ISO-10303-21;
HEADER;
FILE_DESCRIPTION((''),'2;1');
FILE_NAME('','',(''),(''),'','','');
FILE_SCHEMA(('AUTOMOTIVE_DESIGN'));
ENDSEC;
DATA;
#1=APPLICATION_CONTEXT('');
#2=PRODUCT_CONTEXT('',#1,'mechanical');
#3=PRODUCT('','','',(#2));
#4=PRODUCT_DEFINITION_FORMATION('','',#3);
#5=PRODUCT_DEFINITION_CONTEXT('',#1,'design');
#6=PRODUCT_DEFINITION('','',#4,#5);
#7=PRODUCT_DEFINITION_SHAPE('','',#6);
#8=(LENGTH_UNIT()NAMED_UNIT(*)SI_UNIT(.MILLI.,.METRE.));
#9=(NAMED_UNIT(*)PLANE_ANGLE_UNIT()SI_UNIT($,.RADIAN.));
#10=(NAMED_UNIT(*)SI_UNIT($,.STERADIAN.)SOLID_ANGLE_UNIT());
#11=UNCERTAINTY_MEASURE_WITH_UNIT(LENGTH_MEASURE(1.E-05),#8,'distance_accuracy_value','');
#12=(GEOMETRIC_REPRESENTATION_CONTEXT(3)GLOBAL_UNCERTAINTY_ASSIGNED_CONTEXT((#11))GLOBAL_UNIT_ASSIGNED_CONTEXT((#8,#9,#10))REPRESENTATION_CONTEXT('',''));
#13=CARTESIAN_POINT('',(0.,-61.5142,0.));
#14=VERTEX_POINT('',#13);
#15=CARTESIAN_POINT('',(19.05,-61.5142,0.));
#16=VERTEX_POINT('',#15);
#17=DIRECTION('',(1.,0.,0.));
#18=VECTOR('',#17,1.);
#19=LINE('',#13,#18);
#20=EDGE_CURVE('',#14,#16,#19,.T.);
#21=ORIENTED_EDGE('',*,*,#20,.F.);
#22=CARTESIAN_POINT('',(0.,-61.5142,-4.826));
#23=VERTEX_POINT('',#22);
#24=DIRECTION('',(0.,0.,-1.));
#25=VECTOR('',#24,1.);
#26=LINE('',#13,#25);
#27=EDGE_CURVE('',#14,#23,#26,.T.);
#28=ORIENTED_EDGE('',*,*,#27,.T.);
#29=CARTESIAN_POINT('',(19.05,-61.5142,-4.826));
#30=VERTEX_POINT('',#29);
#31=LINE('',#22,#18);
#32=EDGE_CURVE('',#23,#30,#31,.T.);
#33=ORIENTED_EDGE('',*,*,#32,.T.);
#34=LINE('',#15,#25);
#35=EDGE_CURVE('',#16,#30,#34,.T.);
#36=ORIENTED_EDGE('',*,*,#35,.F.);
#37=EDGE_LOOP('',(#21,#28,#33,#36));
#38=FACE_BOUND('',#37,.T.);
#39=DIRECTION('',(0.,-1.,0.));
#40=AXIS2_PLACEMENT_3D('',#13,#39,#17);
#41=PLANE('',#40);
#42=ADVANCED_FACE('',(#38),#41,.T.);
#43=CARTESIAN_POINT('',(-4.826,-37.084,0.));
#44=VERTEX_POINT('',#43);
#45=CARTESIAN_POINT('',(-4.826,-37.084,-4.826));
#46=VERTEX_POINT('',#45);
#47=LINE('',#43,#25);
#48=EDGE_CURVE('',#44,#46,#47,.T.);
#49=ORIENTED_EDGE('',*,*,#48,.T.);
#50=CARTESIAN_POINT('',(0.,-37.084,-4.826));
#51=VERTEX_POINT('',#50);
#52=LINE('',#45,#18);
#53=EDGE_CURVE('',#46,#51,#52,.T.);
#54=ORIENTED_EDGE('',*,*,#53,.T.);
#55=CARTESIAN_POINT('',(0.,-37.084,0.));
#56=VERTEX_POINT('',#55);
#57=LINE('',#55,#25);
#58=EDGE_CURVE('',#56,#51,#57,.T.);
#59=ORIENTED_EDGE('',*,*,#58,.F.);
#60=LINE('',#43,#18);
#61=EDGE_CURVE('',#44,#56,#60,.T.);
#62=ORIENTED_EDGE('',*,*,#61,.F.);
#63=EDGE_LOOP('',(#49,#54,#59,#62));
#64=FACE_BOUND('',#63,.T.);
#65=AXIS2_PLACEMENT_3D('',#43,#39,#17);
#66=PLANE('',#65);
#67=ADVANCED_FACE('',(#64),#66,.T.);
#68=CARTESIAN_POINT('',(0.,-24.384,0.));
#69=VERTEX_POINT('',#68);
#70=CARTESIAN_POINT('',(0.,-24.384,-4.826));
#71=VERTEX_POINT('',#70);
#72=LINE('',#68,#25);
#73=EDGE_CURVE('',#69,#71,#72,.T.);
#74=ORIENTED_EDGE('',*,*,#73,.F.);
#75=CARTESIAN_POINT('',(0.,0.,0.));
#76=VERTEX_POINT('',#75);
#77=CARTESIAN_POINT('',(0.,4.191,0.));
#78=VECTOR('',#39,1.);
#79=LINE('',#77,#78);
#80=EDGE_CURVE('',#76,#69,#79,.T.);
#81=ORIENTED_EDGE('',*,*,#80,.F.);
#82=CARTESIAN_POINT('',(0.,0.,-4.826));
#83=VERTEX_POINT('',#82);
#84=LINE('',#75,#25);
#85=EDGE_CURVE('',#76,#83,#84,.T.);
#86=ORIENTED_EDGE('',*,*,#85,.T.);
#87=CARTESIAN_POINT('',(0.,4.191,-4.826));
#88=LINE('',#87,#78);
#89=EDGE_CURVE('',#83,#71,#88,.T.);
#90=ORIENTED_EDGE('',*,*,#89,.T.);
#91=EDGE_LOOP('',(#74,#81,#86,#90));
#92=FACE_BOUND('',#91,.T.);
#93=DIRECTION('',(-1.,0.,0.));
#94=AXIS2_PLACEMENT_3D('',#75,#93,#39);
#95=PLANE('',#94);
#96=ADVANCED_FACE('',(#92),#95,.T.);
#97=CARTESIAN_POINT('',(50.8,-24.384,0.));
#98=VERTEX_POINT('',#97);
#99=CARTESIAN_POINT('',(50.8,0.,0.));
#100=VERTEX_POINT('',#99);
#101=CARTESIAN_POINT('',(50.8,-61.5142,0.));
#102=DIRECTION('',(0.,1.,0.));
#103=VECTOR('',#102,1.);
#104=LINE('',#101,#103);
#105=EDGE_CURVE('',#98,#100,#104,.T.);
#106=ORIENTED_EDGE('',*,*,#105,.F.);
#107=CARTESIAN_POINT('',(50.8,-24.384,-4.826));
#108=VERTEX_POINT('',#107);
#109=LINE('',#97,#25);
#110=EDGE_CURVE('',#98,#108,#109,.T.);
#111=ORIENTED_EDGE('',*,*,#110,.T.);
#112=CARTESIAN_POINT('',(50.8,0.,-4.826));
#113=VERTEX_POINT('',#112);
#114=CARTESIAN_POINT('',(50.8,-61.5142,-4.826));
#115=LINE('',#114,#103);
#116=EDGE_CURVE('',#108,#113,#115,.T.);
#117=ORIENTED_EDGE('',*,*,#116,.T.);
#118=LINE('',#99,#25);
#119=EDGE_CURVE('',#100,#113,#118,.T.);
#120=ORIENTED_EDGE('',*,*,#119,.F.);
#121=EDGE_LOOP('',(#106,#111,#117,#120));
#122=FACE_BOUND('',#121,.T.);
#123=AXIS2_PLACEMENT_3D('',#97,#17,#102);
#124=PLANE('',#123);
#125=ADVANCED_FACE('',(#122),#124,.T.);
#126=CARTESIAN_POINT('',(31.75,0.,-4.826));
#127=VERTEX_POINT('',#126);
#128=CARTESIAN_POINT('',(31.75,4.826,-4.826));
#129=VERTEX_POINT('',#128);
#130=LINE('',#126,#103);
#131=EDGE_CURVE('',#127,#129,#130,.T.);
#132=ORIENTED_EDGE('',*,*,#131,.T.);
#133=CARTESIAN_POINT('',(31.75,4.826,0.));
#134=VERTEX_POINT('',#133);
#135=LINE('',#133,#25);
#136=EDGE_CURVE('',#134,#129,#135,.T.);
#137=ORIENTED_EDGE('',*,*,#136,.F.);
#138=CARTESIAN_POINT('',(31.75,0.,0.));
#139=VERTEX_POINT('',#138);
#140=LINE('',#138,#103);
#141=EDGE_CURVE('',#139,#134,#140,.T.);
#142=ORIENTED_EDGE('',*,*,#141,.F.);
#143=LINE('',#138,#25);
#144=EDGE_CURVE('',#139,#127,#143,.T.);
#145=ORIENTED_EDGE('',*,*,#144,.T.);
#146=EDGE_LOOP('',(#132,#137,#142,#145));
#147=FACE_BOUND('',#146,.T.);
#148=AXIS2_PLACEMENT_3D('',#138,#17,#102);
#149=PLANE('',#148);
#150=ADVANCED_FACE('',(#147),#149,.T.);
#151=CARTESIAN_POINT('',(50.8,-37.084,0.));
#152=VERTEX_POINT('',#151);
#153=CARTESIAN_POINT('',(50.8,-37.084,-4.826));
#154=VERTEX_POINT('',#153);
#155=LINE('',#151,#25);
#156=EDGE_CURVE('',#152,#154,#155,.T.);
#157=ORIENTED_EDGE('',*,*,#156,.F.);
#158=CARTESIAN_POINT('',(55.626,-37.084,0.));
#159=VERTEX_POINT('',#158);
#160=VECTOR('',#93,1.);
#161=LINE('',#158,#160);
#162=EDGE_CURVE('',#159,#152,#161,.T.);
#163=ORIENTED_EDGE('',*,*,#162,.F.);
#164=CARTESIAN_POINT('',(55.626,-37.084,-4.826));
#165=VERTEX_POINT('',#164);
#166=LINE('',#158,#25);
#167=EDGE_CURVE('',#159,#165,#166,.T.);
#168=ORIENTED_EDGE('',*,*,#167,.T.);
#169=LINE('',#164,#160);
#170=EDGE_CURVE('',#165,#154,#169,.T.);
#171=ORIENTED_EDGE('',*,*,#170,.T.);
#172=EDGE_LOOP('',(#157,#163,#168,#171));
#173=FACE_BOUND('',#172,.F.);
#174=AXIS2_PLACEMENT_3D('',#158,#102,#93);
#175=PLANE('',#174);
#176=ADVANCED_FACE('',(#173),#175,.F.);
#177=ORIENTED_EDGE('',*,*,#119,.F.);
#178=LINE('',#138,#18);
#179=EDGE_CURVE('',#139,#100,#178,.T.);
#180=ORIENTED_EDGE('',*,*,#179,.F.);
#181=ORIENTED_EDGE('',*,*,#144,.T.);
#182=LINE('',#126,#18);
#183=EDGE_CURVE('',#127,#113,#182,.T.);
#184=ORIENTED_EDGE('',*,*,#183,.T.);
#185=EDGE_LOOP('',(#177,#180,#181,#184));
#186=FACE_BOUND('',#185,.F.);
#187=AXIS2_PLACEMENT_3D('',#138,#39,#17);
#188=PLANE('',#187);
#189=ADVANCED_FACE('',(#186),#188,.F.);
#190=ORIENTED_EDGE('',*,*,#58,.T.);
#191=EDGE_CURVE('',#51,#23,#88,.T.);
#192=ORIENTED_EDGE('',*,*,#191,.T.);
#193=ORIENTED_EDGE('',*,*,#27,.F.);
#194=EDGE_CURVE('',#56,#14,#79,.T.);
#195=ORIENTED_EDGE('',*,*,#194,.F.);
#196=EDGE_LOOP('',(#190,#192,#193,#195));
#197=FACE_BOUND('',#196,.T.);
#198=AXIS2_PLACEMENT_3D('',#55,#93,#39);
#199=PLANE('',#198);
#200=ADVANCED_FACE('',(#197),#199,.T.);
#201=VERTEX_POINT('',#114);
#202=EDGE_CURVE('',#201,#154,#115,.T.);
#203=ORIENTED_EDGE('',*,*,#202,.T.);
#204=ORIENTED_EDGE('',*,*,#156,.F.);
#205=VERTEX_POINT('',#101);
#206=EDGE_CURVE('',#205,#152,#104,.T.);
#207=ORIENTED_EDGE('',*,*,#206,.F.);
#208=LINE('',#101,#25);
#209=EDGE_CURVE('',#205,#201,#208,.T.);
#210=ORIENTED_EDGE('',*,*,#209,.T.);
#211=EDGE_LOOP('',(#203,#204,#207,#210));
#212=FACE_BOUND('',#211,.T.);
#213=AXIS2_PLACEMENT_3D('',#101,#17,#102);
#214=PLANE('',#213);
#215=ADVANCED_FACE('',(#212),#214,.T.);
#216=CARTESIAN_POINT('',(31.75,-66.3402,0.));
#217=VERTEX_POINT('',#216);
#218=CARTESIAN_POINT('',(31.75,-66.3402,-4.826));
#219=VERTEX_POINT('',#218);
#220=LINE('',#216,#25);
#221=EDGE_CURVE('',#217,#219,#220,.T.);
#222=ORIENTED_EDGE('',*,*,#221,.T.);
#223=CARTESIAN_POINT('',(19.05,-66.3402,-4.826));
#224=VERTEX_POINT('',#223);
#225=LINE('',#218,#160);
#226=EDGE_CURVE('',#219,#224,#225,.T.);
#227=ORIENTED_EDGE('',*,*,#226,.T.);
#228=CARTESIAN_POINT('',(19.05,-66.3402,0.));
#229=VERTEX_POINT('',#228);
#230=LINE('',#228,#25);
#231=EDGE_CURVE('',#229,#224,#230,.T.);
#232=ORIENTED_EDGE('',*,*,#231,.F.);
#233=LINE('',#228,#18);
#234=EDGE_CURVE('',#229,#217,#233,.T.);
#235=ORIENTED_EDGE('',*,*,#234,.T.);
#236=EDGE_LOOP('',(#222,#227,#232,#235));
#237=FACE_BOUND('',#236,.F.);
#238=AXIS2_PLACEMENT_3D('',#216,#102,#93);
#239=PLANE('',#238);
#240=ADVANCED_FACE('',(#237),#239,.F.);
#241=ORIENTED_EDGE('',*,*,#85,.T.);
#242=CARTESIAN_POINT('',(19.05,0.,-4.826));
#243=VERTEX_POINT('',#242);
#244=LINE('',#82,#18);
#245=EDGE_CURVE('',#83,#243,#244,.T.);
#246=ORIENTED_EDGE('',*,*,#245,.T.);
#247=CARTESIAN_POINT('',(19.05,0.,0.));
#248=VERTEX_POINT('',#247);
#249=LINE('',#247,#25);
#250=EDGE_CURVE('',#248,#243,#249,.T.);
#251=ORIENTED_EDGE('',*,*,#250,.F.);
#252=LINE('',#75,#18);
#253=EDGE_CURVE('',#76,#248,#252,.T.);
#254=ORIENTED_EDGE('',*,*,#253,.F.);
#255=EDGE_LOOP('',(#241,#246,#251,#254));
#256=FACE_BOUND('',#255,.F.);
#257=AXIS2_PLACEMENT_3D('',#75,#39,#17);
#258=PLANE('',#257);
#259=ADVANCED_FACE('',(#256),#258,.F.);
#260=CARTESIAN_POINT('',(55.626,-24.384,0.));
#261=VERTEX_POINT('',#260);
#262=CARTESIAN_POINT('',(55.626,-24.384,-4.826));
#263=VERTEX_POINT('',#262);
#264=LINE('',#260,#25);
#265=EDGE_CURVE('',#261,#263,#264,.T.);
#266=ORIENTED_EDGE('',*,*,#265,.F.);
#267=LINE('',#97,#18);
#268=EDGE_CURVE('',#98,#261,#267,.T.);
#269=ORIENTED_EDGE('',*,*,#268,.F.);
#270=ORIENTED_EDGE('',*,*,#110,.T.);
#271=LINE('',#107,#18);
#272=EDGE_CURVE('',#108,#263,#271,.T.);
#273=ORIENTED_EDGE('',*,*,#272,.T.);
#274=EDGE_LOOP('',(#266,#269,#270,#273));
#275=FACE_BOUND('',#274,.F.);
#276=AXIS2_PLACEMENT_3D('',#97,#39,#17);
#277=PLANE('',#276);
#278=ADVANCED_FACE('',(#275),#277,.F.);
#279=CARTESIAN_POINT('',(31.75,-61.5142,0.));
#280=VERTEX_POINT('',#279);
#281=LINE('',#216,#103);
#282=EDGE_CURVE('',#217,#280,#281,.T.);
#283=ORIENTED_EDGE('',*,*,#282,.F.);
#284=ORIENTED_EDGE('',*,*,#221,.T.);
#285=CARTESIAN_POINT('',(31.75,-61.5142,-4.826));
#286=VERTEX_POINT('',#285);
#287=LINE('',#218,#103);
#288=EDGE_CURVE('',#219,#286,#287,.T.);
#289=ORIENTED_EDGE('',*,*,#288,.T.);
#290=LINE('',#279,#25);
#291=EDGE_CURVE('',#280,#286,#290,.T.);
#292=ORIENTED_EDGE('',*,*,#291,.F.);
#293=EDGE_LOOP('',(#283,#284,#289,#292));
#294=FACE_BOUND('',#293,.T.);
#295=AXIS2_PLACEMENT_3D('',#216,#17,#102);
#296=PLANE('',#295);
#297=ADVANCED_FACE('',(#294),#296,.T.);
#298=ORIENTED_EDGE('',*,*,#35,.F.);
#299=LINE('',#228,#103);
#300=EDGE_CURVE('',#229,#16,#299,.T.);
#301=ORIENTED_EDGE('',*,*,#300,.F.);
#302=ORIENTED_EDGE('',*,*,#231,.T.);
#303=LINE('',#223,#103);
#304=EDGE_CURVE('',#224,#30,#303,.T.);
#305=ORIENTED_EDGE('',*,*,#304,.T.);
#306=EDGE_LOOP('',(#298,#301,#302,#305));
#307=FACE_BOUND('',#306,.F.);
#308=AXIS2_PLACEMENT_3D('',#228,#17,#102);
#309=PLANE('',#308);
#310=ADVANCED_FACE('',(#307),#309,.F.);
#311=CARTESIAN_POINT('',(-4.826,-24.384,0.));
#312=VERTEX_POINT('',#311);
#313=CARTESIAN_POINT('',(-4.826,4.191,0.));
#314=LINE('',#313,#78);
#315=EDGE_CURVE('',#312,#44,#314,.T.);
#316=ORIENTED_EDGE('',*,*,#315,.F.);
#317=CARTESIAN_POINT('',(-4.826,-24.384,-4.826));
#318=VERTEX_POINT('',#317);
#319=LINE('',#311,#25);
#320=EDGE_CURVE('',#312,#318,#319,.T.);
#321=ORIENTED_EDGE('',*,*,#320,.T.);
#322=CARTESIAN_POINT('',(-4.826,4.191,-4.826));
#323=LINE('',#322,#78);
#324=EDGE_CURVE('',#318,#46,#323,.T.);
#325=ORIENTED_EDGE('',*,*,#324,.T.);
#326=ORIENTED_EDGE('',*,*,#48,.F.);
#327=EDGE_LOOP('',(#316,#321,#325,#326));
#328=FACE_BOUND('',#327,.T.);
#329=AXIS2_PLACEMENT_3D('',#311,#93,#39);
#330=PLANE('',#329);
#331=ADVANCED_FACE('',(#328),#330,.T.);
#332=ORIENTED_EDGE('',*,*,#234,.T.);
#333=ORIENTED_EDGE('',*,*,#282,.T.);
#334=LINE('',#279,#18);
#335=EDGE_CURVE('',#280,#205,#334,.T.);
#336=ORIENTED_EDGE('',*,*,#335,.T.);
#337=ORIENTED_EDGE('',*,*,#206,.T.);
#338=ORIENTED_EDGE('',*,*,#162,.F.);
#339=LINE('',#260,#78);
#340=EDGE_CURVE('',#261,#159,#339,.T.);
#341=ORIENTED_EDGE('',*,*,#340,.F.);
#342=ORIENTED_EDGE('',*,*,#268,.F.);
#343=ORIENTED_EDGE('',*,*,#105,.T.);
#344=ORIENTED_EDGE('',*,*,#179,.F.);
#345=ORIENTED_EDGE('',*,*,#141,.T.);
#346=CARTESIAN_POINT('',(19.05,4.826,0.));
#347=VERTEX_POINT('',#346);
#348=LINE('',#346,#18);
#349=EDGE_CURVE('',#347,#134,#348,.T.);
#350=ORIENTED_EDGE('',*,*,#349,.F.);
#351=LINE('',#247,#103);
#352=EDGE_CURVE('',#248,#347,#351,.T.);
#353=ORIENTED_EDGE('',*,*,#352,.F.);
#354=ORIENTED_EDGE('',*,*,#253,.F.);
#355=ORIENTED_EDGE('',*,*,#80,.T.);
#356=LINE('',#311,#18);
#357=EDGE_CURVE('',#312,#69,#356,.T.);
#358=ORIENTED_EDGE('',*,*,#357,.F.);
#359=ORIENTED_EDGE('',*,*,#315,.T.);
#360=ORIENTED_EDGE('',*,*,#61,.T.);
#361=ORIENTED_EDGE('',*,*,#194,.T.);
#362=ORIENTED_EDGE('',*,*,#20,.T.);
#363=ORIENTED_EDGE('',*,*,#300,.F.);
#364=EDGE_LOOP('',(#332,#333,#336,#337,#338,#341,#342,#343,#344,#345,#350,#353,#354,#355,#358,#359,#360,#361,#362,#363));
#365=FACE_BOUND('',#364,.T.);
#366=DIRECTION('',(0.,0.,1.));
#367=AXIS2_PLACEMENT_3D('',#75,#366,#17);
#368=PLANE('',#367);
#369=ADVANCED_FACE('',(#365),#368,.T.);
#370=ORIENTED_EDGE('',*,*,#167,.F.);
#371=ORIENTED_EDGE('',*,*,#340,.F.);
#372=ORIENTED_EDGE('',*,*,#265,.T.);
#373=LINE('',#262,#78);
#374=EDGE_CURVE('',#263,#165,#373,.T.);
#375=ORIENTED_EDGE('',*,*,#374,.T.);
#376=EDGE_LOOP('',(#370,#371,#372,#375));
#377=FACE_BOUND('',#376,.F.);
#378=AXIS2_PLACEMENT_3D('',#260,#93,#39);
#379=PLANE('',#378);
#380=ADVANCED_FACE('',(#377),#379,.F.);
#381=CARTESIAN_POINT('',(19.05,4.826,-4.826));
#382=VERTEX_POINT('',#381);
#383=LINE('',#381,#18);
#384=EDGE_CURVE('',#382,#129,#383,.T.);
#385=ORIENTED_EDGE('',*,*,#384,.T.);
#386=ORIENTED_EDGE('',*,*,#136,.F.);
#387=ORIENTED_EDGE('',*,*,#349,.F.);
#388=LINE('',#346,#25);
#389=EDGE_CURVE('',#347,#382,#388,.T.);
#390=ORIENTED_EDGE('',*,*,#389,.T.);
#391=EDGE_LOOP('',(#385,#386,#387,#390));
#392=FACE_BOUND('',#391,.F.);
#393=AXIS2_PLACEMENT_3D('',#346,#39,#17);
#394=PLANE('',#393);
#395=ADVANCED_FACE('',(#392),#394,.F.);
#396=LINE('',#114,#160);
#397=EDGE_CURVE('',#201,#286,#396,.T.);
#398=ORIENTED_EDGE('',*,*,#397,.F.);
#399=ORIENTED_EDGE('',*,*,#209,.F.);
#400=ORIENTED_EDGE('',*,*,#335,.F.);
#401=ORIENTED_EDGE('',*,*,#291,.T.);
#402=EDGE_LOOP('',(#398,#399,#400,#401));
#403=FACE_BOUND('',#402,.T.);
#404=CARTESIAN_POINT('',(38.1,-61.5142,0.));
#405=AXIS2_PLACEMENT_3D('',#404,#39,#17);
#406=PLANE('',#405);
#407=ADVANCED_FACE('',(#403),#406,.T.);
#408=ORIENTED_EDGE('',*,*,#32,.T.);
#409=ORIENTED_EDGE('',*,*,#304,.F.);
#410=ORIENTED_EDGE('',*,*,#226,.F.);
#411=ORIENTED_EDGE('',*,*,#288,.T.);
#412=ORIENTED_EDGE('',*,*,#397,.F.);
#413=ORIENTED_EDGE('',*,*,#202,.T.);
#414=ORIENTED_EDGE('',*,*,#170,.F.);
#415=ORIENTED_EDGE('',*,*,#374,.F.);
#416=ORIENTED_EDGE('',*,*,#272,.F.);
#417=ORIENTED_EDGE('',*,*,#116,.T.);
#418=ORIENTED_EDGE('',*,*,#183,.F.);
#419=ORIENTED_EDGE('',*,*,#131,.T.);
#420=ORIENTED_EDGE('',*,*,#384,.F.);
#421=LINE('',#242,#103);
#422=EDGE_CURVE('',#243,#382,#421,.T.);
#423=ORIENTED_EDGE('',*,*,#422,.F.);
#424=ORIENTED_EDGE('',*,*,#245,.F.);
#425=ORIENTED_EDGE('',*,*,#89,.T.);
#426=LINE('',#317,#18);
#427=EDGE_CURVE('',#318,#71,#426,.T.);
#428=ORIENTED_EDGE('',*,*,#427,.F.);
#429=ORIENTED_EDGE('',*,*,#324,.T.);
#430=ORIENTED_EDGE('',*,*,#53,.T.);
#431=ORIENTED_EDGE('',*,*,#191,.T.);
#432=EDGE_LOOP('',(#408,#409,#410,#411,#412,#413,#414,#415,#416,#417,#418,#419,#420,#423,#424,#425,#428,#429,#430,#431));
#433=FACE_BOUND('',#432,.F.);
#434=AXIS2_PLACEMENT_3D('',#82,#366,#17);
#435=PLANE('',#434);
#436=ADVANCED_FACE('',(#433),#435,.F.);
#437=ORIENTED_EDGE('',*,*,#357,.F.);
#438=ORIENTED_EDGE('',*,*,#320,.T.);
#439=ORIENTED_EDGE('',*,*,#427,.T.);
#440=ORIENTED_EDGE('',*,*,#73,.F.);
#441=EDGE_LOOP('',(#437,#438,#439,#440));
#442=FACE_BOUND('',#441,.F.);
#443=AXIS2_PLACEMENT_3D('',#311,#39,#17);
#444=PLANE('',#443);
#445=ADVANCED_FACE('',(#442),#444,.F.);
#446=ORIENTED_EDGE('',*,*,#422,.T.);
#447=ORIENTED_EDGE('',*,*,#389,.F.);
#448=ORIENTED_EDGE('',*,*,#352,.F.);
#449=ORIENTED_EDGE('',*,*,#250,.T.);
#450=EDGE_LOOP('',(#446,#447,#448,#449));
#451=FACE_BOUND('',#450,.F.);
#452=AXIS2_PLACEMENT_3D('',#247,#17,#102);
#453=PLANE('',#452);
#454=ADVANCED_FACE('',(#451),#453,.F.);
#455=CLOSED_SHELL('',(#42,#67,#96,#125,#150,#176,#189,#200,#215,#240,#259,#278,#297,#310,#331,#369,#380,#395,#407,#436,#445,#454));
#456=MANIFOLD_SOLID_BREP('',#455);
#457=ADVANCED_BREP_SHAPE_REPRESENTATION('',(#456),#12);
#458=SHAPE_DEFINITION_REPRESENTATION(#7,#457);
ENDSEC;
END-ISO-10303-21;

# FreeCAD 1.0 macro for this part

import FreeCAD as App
import Part
import Sketcher
from FreeCAD import Vector
Q = App.Units.Quantity

doc = App.newDocument("Part")
body = doc.addObject("PartDesign::Body", "Body")

sketch1 = body.newObject("Sketcher::SketchObject", "Sketch")
sketch1.AttachmentSupport = (doc.getObject("XY_Plane"), [""])
sketch1.MapMode = "FlatFace"
sketch1.addGeometry([
    Part.LineSegment(Vector(19.1, 0, 0), Vector(0, 0, 0)),
    Part.LineSegment(Vector(0, 0, 0), Vector(0, -24.4, 0)),
    Part.LineSegment(Vector(0, -24.4, 0), Vector(-4.8, -24.4, 0)),
    Part.LineSegment(Vector(-4.8, -24.4, 0), Vector(-4.8, -37.1, 0)),
    Part.LineSegment(Vector(-4.8, -37.1, 0), Vector(0, -37.1, 0)),
    Part.LineSegment(Vector(0, -37.1, 0), Vector(0, -61.5, 0)),
    Part.LineSegment(Vector(0, -61.5, 0), Vector(19.1, -61.5, 0)),
    Part.LineSegment(Vector(19.1, -61.5, 0), Vector(19.1, -66.3, 0)),
    Part.LineSegment(Vector(19.1, -66.3, 0), Vector(31.8, -66.3, 0)),
    Part.LineSegment(Vector(31.8, -66.3, 0), Vector(31.8, -61.5, 0)),
    Part.LineSegment(Vector(31.8, -61.5, 0), Vector(50.8, -61.5, 0)),
    Part.LineSegment(Vector(50.8, -61.5, 0), Vector(50.8, -37.1, 0)),
    Part.LineSegment(Vector(50.8, -37.1, 0), Vector(55.6, -37.1, 0)),
    Part.LineSegment(Vector(55.6, -37.1, 0), Vector(55.6, -24.4, 0)),
    Part.LineSegment(Vector(55.6, -24.4, 0), Vector(50.8, -24.4, 0)),
    Part.LineSegment(Vector(50.8, -24.4, 0), Vector(50.8, 0, 0)),
    Part.LineSegment(Vector(50.8, 0, 0), Vector(31.8, 0, 0)),
    Part.LineSegment(Vector(31.8, 0, 0), Vector(31.8, 4.8, 0)),
    Part.LineSegment(Vector(31.8, 4.8, 0), Vector(19.1, 4.8, 0)),
    Part.LineSegment(Vector(19.1, 4.8, 0), Vector(19.1, 0, 0)),
], False)
sketch1.addConstraint([
    Sketcher.Constraint("Coincident", 0, 2, 1, 1),
    Sketcher.Constraint("Coincident", 1, 2, 2, 1),
    Sketcher.Constraint("Coincident", 2, 2, 3, 1),
    Sketcher.Constraint("Coincident", 3, 2, 4, 1),
    Sketcher.Constraint("Coincident", 4, 2, 5, 1),
    Sketcher.Constraint("Coincident", 5, 2, 6, 1),
    Sketcher.Constraint("Coincident", 6, 2, 7, 1),
    Sketcher.Constraint("Coincident", 7, 2, 8, 1),
    Sketcher.Constraint("Coincident", 8, 2, 9, 1),
    Sketcher.Constraint("Coincident", 9, 2, 10, 1),
    Sketcher.Constraint("Coincident", 10, 2, 11, 1),
    Sketcher.Constraint("Coincident", 11, 2, 12, 1),
    Sketcher.Constraint("Coincident", 12, 2, 13, 1),
    Sketcher.Constraint("Coincident", 13, 2, 14, 1),
    Sketcher.Constraint("Coincident", 14, 2, 15, 1),
    Sketcher.Constraint("Coincident", 15, 2, 16, 1),
    Sketcher.Constraint("Coincident", 16, 2, 17, 1),
    Sketcher.Constraint("Coincident", 17, 2, 18, 1),
    Sketcher.Constraint("Coincident", 18, 2, 19, 1),
    Sketcher.Constraint("Coincident", 19, 2, 0, 1),
    Sketcher.Constraint("Horizontal", 0),
    Sketcher.Constraint("Vertical", 1),
    Sketcher.Constraint("Horizontal", 2),
    Sketcher.Constraint("Vertical", 3),
    Sketcher.Constraint("Horizontal", 4),
    Sketcher.Constraint("Vertical", 5),
    Sketcher.Constraint("Horizontal", 6),
    Sketcher.Constraint("Vertical", 7),
    Sketcher.Constraint("Horizontal", 8),
    Sketcher.Constraint("Vertical", 9),
    Sketcher.Constraint("Horizontal", 10),
    Sketcher.Constraint("Vertical", 11),
    Sketcher.Constraint("Horizontal", 12),
    Sketcher.Constraint("Vertical", 13),
    Sketcher.Constraint("Horizontal", 14),
    Sketcher.Constraint("Vertical", 15),
    Sketcher.Constraint("Horizontal", 16),
    Sketcher.Constraint("Vertical", 17),
    Sketcher.Constraint("Horizontal", 18),
    Sketcher.Constraint("Vertical", 19),
    Sketcher.Constraint("Coincident", 0, 2, -1, 1),
    Sketcher.Constraint("PointOnObject", 4, 2, -2),
    Sketcher.Constraint("PointOnObject", 15, 2, -1),
    Sketcher.Constraint("Horizontal", 6, 2, 9, 2),
    Sketcher.Constraint("Horizontal", 4, 2, 11, 2),
    Sketcher.Constraint("Horizontal", 2, 2, 13, 2),
    Sketcher.Constraint("Vertical", 11, 2, 14, 2),
    Sketcher.Constraint("Vertical", 9, 2, 16, 2),
    Sketcher.Constraint("Vertical", 7, 2, 18, 2),
    Sketcher.Constraint("Equal", 6, 10),
    Sketcher.Constraint("Equal", 4, 12),
    Sketcher.Constraint("Equal", 18, 3),
    Sketcher.Constraint("Equal", 14, 7),
    Sketcher.Constraint("Equal", 9, 17),
    Sketcher.Constraint("DistanceX", 8, 1, 8, 2, Q("0.5 in")),
    Sketcher.Constraint("DistanceX", -1, 1, 10, 2, Q("2 in")),
    Sketcher.Constraint("DistanceX", 2, 2, 2, 1, Q("0.19 in")),
    Sketcher.Constraint("DistanceY", 1, 2, 1, 1, Q("0.96 in")),
    Sketcher.Constraint("DistanceY", 5, 2, 5, 1, Q("24.4302 mm")),
])
pad1 = body.newObject("PartDesign::Pad", "Pad")
pad1.Profile = sketch1
pad1.Length = Q("0.19 in")
pad1.Reversed = True

doc.recompute()
